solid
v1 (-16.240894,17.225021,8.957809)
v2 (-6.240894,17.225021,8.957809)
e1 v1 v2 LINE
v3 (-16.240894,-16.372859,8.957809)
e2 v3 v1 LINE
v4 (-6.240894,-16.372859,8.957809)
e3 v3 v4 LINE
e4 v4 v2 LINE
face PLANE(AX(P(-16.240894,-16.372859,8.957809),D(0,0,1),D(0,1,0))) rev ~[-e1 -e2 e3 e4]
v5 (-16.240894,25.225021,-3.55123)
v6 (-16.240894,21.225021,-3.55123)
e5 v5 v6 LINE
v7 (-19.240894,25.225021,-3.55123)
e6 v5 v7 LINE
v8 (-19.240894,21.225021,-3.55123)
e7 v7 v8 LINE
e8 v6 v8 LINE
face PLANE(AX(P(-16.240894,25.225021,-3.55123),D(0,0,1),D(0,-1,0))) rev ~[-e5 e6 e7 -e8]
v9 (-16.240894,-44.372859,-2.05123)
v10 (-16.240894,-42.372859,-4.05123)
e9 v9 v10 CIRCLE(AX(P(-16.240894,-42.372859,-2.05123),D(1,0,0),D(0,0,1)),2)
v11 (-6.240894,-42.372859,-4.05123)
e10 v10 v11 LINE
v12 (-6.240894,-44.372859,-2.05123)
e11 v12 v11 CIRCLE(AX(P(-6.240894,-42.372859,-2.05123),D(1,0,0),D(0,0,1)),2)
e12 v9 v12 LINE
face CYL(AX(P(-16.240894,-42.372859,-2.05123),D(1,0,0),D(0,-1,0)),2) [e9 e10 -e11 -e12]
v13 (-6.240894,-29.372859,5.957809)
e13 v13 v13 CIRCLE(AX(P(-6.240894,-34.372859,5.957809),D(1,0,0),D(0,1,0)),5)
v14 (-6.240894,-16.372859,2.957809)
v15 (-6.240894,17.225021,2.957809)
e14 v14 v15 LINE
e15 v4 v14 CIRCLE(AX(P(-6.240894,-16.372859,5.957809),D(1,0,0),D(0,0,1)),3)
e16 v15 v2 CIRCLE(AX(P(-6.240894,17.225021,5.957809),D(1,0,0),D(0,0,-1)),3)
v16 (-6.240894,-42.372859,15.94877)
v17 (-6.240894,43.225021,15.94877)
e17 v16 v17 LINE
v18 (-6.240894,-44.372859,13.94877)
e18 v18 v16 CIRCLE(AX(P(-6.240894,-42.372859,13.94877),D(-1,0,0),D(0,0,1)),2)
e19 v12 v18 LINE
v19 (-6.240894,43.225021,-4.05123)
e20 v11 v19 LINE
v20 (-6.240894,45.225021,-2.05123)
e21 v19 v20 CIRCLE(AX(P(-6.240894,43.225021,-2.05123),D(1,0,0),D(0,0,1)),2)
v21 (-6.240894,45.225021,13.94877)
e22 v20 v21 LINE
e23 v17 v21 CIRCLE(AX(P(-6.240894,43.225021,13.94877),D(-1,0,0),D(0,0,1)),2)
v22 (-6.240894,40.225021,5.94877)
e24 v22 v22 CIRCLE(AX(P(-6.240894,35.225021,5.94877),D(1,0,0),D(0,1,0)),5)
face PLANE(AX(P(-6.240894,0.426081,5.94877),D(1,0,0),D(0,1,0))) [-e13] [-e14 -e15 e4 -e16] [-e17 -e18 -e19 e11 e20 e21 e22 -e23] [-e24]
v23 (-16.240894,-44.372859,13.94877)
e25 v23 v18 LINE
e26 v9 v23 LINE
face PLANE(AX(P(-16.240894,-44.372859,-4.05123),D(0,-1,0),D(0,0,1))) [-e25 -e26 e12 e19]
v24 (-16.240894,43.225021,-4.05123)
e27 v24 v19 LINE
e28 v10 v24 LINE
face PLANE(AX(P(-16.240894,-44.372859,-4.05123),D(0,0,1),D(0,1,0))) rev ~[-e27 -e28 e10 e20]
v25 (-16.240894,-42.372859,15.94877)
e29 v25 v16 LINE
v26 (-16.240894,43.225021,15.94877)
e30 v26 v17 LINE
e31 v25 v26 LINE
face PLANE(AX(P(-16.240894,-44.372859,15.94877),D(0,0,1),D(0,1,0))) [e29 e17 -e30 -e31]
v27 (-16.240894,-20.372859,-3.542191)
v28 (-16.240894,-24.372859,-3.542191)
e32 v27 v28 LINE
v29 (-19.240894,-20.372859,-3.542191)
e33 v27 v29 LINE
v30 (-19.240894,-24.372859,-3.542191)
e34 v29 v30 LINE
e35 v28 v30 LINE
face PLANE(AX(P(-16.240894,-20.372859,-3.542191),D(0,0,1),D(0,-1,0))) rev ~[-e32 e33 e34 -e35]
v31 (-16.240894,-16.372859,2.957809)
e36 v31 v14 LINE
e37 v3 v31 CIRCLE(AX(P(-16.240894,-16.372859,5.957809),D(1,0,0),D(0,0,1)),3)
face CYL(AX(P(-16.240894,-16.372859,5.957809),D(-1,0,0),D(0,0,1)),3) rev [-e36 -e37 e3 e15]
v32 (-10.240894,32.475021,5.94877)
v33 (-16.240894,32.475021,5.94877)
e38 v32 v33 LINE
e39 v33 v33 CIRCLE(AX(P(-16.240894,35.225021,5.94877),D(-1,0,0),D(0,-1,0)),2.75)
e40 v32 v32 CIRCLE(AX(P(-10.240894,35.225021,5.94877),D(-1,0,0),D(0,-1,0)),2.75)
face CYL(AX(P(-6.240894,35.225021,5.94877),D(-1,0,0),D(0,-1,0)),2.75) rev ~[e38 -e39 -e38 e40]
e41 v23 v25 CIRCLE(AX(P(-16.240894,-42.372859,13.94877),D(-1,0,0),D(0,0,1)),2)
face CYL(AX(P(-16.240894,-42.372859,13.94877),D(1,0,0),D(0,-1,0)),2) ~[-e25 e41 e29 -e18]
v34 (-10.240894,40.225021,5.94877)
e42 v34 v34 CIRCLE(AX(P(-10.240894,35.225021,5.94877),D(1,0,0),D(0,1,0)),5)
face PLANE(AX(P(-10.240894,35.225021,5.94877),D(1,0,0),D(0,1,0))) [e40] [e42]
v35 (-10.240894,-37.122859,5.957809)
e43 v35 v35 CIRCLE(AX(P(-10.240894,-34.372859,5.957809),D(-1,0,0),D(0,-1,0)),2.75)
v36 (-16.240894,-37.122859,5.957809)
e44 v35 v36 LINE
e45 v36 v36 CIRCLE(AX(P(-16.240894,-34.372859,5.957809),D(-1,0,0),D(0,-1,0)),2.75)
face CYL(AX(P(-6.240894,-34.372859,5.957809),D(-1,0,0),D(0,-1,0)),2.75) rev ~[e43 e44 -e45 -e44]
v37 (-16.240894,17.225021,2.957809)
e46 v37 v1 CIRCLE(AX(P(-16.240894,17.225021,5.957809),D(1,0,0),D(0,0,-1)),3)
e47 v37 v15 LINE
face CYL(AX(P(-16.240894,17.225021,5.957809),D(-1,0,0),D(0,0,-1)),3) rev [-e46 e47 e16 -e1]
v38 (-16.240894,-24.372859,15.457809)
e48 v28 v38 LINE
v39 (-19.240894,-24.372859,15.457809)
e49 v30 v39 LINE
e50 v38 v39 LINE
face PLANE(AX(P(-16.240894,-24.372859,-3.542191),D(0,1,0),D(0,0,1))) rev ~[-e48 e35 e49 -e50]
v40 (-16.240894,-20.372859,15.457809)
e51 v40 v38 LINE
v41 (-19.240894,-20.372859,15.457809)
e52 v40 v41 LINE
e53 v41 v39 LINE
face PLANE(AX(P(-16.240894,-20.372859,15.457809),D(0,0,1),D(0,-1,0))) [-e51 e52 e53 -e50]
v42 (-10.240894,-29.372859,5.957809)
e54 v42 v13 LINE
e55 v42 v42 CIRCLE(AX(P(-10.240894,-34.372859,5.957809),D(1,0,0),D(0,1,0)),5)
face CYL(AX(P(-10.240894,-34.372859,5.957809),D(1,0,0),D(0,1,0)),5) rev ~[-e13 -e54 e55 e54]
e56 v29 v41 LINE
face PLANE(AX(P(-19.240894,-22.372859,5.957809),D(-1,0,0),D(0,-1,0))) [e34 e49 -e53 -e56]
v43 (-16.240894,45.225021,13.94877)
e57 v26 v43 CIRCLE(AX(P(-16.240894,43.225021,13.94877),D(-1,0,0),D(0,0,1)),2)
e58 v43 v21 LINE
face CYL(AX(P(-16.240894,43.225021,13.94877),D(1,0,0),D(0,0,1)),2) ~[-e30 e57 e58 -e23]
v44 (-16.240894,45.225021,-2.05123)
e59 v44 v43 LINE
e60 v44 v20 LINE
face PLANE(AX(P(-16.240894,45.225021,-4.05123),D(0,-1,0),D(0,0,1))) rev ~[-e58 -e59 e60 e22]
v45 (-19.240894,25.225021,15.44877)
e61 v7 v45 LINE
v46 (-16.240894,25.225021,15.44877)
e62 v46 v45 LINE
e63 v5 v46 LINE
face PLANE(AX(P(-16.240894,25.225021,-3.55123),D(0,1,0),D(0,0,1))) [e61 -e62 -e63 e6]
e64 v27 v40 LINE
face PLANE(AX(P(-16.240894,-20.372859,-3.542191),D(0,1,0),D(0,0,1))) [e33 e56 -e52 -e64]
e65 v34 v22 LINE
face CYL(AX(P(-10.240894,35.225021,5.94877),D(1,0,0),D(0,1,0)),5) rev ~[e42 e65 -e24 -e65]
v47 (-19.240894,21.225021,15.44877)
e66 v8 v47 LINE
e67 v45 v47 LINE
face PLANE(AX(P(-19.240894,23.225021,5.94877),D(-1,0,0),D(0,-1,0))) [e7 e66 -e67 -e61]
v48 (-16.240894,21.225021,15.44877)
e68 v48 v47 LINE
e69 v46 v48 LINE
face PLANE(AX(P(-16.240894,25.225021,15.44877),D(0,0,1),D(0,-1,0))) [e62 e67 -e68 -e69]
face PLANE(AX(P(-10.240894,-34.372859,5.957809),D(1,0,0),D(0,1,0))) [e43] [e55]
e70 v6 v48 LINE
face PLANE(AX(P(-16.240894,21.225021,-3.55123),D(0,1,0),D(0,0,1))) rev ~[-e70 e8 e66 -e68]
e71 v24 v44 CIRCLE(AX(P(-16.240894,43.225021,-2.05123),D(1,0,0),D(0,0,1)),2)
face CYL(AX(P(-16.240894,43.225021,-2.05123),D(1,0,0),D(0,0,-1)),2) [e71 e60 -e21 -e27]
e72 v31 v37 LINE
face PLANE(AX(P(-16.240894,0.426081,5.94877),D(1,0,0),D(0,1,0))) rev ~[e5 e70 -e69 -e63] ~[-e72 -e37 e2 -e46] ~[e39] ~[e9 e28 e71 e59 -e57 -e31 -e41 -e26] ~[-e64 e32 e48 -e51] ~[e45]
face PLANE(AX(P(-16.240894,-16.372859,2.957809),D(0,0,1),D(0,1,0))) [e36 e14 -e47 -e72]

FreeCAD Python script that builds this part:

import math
import FreeCAD as App
import Part
import Sketcher

V = App.Vector
Q = App.Units.Quantity


def edges_at(feature, points):
    """Names of the edges that pass closest to the given points."""
    edges = feature.Shape.Edges
    near = lambda p: min(range(len(edges)), key=lambda i: edges[i].distToShape(Part.Vertex(*p))[0])
    return sorted({f"Edge{near(p) + 1}" for p in points})

doc = App.newDocument("Part")
params = doc.addObject("Spreadsheet::Sheet", "Params")
for row, (alias, value) in enumerate([
    ("sketch1_radius", "3 mm"),
    ("sketch1_height", "20 mm"),
    ("pad1_length", "10 mm"),
    ("sketch2_width", "4 mm"),
    ("sketch2_height", "19 mm"),
    ("pad2_length", "3 mm"),
    ("sketch3_diameter", "5.5 mm"),
    ("hole_diameter", "5.5 mm"),
    ("hole_depth", "25 mm"),
    ("hole_cbore_diameter", "10 mm"),
    ("hole_cbore_depth", "4 mm"),
    ("fillet_radius", "2 mm"),
], start=1):
    params.set(f"A{row}", alias)
    params.set(f"B{row}", "=" + value)
    params.setAlias(f"B{row}", alias)

body = doc.addObject("PartDesign::Body", "Body")

# Sketch on YZ plane
sketch1 = body.newObject("Sketcher::SketchObject", "Sketch")
sketch1.AttachmentSupport = (doc.getObject("YZ_Plane"), [""])
sketch1.MapMode = "FlatFace"
sketch1.AttachmentOffset = App.Placement(V(0, 0, 237.459106), App.Rotation())
sketch1.addGeometry(Part.LineSegment(V(-44.4, 199.8, 0), V(-44.4, 179.8, 0)), False)
sketch1.addGeometry(Part.LineSegment(V(-44.4, 179.8, 0), V(45.2, 179.8, 0)), False)
sketch1.addGeometry(Part.LineSegment(V(45.2, 179.8, 0), V(45.2, 199.8, 0)), False)
sketch1.addGeometry(Part.LineSegment(V(45.2, 199.8, 0), V(-44.4, 199.8, 0)), False)
sketch1.addGeometry(Part.ArcOfCircle(Part.Circle(V(-16.4, 189.9, 0), V(0, 0, 1), 3), math.radians(90), math.radians(270)), False)
sketch1.addGeometry(Part.LineSegment(V(-16.4, 192.9, 0), V(17.2, 192.9, 0)), False)
sketch1.addGeometry(Part.ArcOfCircle(Part.Circle(V(17.2, 189.9, 0), V(0, 0, 1), 3), math.radians(-90), math.radians(90)), False)
sketch1.addGeometry(Part.LineSegment(V(17.2, 186.9, 0), V(-16.4, 186.9, 0)), False)
sketch1.addConstraint(Sketcher.Constraint("Coincident", 0, 2, 1, 1))
sketch1.addConstraint(Sketcher.Constraint("Coincident", 1, 2, 2, 1))
sketch1.addConstraint(Sketcher.Constraint("Coincident", 2, 2, 3, 1))
sketch1.addConstraint(Sketcher.Constraint("Coincident", 3, 2, 0, 1))
sketch1.addConstraint(Sketcher.Constraint("Tangent", 4, 1, 5, 1))
sketch1.addConstraint(Sketcher.Constraint("Tangent", 5, 2, 6, 2))
sketch1.addConstraint(Sketcher.Constraint("Tangent", 6, 1, 7, 1))
sketch1.addConstraint(Sketcher.Constraint("Tangent", 7, 2, 4, 2))
sketch1.addConstraint(Sketcher.Constraint("Vertical", 0))
sketch1.addConstraint(Sketcher.Constraint("Horizontal", 1))
sketch1.addConstraint(Sketcher.Constraint("Vertical", 2))
sketch1.addConstraint(Sketcher.Constraint("Horizontal", 3))
sketch1.addConstraint(Sketcher.Constraint("Horizontal", 5))
sketch1.addConstraint(Sketcher.Constraint("Horizontal", 7))
sketch1.addConstraint(Sketcher.Constraint("Radius", 4, Q("3 mm")))
sketch1.addConstraint(Sketcher.Constraint("DistanceY", 0, 2, 0, 1, Q("20 mm")))
sketch1.addConstraint(Sketcher.Constraint("DistanceX", 0, 2, 4, 3, Q("28 mm")))
sketch1.addConstraint(Sketcher.Constraint("DistanceX", 6, 3, 1, 2, Q("28 mm")))
sketch1.addConstraint(Sketcher.Constraint("DistanceX", 1, 1, 1, 2, Q("89.59788 mm")))
sketch1.addConstraint(Sketcher.Constraint("DistanceX", 4, 3, -1, 1, Q("16.372859 mm")))
sketch1.addConstraint(Sketcher.Constraint("DistanceY", -1, 1, 4, 3, Q("189.857809 mm")))
sketch1.addConstraint(Sketcher.Constraint("DistanceY", -1, 1, 0, 2, Q("179.84877 mm")))
sketch1.setExpression("Constraints[14]", "Params.sketch1_radius")
sketch1.setExpression("Constraints[15]", "Params.sketch1_height")
pad1 = body.newObject("PartDesign::Pad", "Pad")
pad1.Profile = sketch1
pad1.setExpression("Length", "Params.pad1_length")

# Sketch on YZ plane
sketch2 = body.newObject("Sketcher::SketchObject", "Sketch001")
sketch2.AttachmentSupport = (doc.getObject("YZ_Plane"), [""])
sketch2.MapMode = "FlatFace"
sketch2.AttachmentOffset = App.Placement(V(0, 0, 237.459106), App.Rotation())
sketch2.addGeometry(Part.LineSegment(V(25.2, 199.3, 0), V(25.2, 180.3, 0)), False)
sketch2.addGeometry(Part.LineSegment(V(25.2, 180.3, 0), V(21.2, 180.3, 0)), False)
sketch2.addGeometry(Part.LineSegment(V(21.2, 180.3, 0), V(21.2, 199.3, 0)), False)
sketch2.addGeometry(Part.LineSegment(V(21.2, 199.3, 0), V(25.2, 199.3, 0)), False)
sketch2.addGeometry(Part.LineSegment(V(-20.4, 199.4, 0), V(-20.4, 180.4, 0)), False)
sketch2.addGeometry(Part.LineSegment(V(-20.4, 180.4, 0), V(-24.4, 180.4, 0)), False)
sketch2.addGeometry(Part.LineSegment(V(-24.4, 180.4, 0), V(-24.4, 199.4, 0)), False)
sketch2.addGeometry(Part.LineSegment(V(-24.4, 199.4, 0), V(-20.4, 199.4, 0)), False)
sketch2.addConstraint(Sketcher.Constraint("Coincident", 0, 2, 1, 1))
sketch2.addConstraint(Sketcher.Constraint("Coincident", 1, 2, 2, 1))
sketch2.addConstraint(Sketcher.Constraint("Coincident", 2, 2, 3, 1))
sketch2.addConstraint(Sketcher.Constraint("Coincident", 3, 2, 0, 1))
sketch2.addConstraint(Sketcher.Constraint("Coincident", 4, 2, 5, 1))
sketch2.addConstraint(Sketcher.Constraint("Coincident", 5, 2, 6, 1))
sketch2.addConstraint(Sketcher.Constraint("Coincident", 6, 2, 7, 1))
sketch2.addConstraint(Sketcher.Constraint("Coincident", 7, 2, 4, 1))
sketch2.addConstraint(Sketcher.Constraint("Vertical", 0))
sketch2.addConstraint(Sketcher.Constraint("Horizontal", 1))
sketch2.addConstraint(Sketcher.Constraint("Vertical", 2))
sketch2.addConstraint(Sketcher.Constraint("Horizontal", 3))
sketch2.addConstraint(Sketcher.Constraint("Vertical", 4))
sketch2.addConstraint(Sketcher.Constraint("Horizontal", 5))
sketch2.addConstraint(Sketcher.Constraint("Vertical", 6))
sketch2.addConstraint(Sketcher.Constraint("Horizontal", 7))
sketch2.addConstraint(Sketcher.Constraint("Equal", 3, 5))
sketch2.addConstraint(Sketcher.Constraint("Equal", 2, 4))
sketch2.addConstraint(Sketcher.Constraint("DistanceX", 1, 2, 1, 1, Q("4 mm")))
sketch2.addConstraint(Sketcher.Constraint("DistanceY", 0, 2, 0, 1, Q("19 mm")))
sketch2.addConstraint(Sketcher.Constraint("DistanceX", -1, 1, 0, 2, Q("25.225021 mm")))
sketch2.addConstraint(Sketcher.Constraint("DistanceY", -1, 1, 0, 2, Q("180.34877 mm")))
sketch2.addConstraint(Sketcher.Constraint("DistanceX", 4, 2, -1, 1, Q("20.372859 mm")))
sketch2.addConstraint(Sketcher.Constraint("DistanceY", -1, 1, 4, 2, Q("180.357809 mm")))
sketch2.setExpression("Constraints[18]", "Params.sketch2_width")
sketch2.setExpression("Constraints[19]", "Params.sketch2_height")
pad2 = body.newObject("PartDesign::Pad", "Pad001")
pad2.Profile = sketch2
pad2.setExpression("Length", "Params.pad2_length")
pad2.Reversed = True

# Sketch on YZ plane
sketch3 = body.newObject("Sketcher::SketchObject", "Sketch002")
sketch3.AttachmentSupport = (doc.getObject("YZ_Plane"), [""])
sketch3.MapMode = "FlatFace"
sketch3.AttachmentOffset = App.Placement(V(0, 0, 247.459106), App.Rotation())
sketch3.addGeometry(Part.Circle(V(-34.4, 189.9, 0), V(0, 0, 1), 2.8), False)
sketch3.addGeometry(Part.Circle(V(35.2, 189.8, 0), V(0, 0, 1), 2.8), False)
sketch3.addConstraint(Sketcher.Constraint("Equal", 0, 1))
sketch3.addConstraint(Sketcher.Constraint("Diameter", 0, Q("5.5 mm")))
sketch3.addConstraint(Sketcher.Constraint("DistanceX", 0, 3, -1, 1, Q("34.372859 mm")))
sketch3.addConstraint(Sketcher.Constraint("DistanceY", -1, 1, 0, 3, Q("189.857809 mm")))
sketch3.addConstraint(Sketcher.Constraint("DistanceX", -1, 1, 1, 3, Q("35.225021 mm")))
sketch3.addConstraint(Sketcher.Constraint("DistanceY", -1, 1, 1, 3, Q("189.84877 mm")))
sketch3.setExpression("Constraints[1]", "Params.sketch3_diameter")
doc.recompute()
hole = body.newObject("PartDesign::Hole", "Hole")
hole.Profile = sketch3
hole.ThreadType = "None"
hole.setExpression("Diameter", "Params.hole_diameter")
hole.DepthType = "Dimension"
hole.setExpression("Depth", "Params.hole_depth")
hole.DrillPoint = "Flat"
hole.HoleCutType = "Counterbore"
hole.setExpression("HoleCutDiameter", "Params.hole_cbore_diameter")
hole.setExpression("HoleCutDepth", "Params.hole_cbore_depth")
doc.recompute()

fillet = body.newObject("PartDesign::Fillet", "Fillet")
fillet.Base = (hole, edges_at(hole, [
    (242.459, 45.225, 199.849),
    (242.459, 45.225, 179.849),
    (242.459, -44.373, 199.849),
    (242.459, -44.373, 179.849),
]))
fillet.setExpression("Radius", "Params.fillet_radius")
body2 = doc.addObject("PartDesign::Body", "Body001")
doc.recompute()

body.Placement = App.Placement(V(-253.7, 0, -183.9), App.Rotation(V(0, 0, 1), 0))
boolean = body2.newObject("PartDesign::Boolean", "Boolean")
boolean.Type = "Fuse"
boolean.addObjects([body])

doc.recompute()
